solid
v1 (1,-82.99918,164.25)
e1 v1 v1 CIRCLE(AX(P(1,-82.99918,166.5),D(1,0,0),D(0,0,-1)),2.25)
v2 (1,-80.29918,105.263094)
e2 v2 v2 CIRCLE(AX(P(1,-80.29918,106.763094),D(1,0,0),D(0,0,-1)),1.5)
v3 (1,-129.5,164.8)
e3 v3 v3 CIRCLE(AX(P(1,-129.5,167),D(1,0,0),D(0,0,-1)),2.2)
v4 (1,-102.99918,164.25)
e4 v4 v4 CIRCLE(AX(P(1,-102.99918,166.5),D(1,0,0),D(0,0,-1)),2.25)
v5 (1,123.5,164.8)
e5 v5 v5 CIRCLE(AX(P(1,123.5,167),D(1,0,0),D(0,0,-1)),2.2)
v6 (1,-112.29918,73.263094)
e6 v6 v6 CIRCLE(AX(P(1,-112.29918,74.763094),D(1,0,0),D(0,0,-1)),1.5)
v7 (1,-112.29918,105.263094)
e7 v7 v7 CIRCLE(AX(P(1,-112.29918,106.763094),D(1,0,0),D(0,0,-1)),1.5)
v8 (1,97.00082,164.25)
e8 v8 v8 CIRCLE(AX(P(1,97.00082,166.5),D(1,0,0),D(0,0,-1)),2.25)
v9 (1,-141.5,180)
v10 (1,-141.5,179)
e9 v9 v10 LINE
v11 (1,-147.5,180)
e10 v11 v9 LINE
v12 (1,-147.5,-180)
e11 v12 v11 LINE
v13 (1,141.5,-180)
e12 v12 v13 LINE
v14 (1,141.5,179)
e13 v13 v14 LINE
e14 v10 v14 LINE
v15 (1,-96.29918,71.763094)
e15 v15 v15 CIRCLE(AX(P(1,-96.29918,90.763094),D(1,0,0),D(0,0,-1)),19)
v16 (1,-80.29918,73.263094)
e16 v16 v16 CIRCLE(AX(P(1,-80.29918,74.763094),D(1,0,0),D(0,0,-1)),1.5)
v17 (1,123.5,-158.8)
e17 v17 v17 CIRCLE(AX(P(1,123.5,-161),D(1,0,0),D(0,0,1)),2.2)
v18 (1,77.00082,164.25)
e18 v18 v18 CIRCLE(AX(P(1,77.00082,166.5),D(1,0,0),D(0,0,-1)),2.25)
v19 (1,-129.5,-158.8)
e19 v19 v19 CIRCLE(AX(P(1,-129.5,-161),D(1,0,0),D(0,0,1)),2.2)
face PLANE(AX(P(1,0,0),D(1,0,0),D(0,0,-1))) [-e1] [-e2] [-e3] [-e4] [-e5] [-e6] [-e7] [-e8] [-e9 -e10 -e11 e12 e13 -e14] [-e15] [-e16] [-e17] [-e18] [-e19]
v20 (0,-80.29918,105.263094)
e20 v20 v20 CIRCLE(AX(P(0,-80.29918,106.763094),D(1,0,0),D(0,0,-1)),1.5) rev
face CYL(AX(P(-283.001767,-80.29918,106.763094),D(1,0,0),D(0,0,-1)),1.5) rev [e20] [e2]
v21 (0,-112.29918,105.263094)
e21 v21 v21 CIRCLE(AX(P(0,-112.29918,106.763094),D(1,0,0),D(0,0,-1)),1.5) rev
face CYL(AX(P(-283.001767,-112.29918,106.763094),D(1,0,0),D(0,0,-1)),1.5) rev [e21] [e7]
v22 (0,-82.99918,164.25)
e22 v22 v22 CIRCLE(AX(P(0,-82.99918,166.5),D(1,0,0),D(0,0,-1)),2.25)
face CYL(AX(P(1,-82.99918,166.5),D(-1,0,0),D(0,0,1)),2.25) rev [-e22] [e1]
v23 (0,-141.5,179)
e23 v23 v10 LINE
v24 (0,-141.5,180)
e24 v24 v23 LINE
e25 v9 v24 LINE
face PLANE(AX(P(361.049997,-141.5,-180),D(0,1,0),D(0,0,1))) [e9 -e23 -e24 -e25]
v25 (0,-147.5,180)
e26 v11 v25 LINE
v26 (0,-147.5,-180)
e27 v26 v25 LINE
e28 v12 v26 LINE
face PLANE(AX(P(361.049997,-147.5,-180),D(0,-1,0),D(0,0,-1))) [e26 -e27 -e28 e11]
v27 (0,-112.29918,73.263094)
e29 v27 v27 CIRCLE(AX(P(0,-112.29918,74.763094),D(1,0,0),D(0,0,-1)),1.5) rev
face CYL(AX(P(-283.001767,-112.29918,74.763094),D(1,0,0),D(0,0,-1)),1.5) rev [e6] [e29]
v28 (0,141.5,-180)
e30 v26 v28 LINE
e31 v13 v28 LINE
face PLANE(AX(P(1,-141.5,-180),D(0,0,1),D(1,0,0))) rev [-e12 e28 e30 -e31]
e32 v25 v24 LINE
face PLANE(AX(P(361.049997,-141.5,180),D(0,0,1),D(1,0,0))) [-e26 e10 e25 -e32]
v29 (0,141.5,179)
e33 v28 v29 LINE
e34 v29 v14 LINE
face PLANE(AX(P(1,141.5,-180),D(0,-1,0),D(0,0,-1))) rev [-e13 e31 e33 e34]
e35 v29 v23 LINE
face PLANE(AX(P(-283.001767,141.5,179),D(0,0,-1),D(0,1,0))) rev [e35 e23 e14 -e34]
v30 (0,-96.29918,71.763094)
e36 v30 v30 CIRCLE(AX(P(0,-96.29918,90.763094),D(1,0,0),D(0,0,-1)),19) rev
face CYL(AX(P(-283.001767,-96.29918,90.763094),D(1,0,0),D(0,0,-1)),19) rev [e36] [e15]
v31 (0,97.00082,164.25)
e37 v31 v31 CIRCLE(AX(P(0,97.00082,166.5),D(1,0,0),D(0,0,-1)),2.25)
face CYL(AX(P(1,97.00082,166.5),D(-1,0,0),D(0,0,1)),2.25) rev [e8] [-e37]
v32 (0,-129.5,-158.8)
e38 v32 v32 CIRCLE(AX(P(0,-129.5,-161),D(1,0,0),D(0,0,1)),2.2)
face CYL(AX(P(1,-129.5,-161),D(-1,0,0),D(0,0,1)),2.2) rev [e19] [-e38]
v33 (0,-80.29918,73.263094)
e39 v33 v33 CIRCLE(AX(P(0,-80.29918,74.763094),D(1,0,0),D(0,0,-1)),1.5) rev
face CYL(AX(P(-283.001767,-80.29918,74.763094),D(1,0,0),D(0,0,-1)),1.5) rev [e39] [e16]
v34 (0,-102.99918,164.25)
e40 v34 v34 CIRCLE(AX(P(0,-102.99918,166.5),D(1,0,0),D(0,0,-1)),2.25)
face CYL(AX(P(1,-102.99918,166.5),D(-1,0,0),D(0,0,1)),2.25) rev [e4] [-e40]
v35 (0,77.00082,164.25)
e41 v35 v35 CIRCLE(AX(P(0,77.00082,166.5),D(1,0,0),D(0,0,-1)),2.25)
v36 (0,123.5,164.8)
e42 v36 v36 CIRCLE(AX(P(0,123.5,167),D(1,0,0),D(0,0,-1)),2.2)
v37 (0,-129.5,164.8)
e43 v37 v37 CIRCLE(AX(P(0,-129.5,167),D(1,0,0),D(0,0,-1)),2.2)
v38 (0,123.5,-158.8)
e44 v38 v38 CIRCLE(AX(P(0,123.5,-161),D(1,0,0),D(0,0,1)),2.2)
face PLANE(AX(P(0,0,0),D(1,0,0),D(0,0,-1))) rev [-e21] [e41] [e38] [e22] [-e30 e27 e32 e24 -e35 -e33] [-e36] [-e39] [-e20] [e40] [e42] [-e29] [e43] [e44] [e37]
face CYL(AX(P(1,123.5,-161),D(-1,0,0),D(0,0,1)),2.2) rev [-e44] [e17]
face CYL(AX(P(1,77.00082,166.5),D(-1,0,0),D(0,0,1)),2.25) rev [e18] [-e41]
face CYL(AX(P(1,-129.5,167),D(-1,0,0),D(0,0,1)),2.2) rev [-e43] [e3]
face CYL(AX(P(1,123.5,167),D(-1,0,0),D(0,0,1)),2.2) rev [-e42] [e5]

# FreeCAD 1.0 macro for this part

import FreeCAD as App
import Part
import Sketcher
Q = App.Units.Quantity

doc = App.newDocument("Part")
body = doc.addObject("PartDesign::Body", "Body")

sketch1 = body.newObject("Sketcher::SketchObject", "Sketch")
sketch1.AttachmentSupport = (doc.getObject("YZ_Plane"), [""])
sketch1.MapMode = "FlatFace"
sketch1.addGeometry([
    Part.LineSegment(App.Vector(141.5, 180, 0), App.Vector(-141.5, 180, 0)),
    Part.LineSegment(App.Vector(-141.5, 180, 0), App.Vector(-141.5, -180, 0)),
    Part.LineSegment(App.Vector(-141.5, -180, 0), App.Vector(141.5, -180, 0)),
    Part.LineSegment(App.Vector(141.5, -180, 0), App.Vector(141.5, 180, 0)),
    Part.Circle(App.Vector(-129.5, 167, 0), App.Vector(0, 0, 1), 2.2),
    Part.Circle(App.Vector(-103, 166.5, 0), App.Vector(0, 0, 1), 2.2),
    Part.Circle(App.Vector(-83, 166.5, 0), App.Vector(0, 0, 1), 2.2),
    Part.Circle(App.Vector(-129.5, -161, 0), App.Vector(0, 0, 1), 2.2),
    Part.Circle(App.Vector(77, 166.5, 0), App.Vector(0, 0, 1), 2.2),
    Part.Circle(App.Vector(97, 166.5, 0), App.Vector(0, 0, 1), 2.2),
    Part.Circle(App.Vector(123.5, 167, 0), App.Vector(0, 0, 1), 2.2),
    Part.Circle(App.Vector(123.5, -161, 0), App.Vector(0, 0, 1), 2.2),
], False)
sketch1.addConstraint([
    Sketcher.Constraint("Coincident", 0, 2, 1, 1),
    Sketcher.Constraint("Coincident", 1, 2, 2, 1),
    Sketcher.Constraint("Coincident", 2, 2, 3, 1),
    Sketcher.Constraint("Coincident", 3, 2, 0, 1),
    Sketcher.Constraint("Horizontal", 0),
    Sketcher.Constraint("Vertical", 1),
    Sketcher.Constraint("Horizontal", 2),
    Sketcher.Constraint("Vertical", 3),
    Sketcher.Constraint("Equal", 5, 6),
    Sketcher.Constraint("Equal", 4, 7),
    Sketcher.Constraint("Equal", 6, 8),
    Sketcher.Constraint("Equal", 8, 9),
    Sketcher.Constraint("Equal", 7, 10),
    Sketcher.Constraint("Equal", 10, 11),
    Sketcher.Constraint("Symmetric", 0, 2, 2, 2, -1, 1),
    Sketcher.Constraint("Horizontal", 5, 3, 6, 3),
    Sketcher.Constraint("Horizontal", 6, 3, 8, 3),
    Sketcher.Constraint("Horizontal", 8, 3, 9, 3),
    Sketcher.Constraint("Horizontal", 4, 3, 10, 3),
    Sketcher.Constraint("Horizontal", 7, 3, 11, 3),
    Sketcher.Constraint("Vertical", 4, 3, 7, 3),
    Sketcher.Constraint("Vertical", 10, 3, 11, 3),
    Sketcher.Constraint("Diameter", 4, Q("4.4 mm")),
    Sketcher.Constraint("Diameter", 5, Q("4.5 mm")),
    Sketcher.Constraint("DistanceX", 0, 2, 0, 1, Q("283 mm")),
    Sketcher.Constraint("DistanceY", 1, 2, 1, 1, Q("360 mm")),
    Sketcher.Constraint("DistanceY", -1, 1, 4, 3, Q("167 mm")),
    Sketcher.Constraint("DistanceY", 7, 3, -1, 1, Q("161 mm")),
    Sketcher.Constraint("DistanceX", 5, 3, 6, 3, Q("20 mm")),
    Sketcher.Constraint("DistanceX", 6, 3, 8, 3, Q("160 mm")),
    Sketcher.Constraint("DistanceX", 8, 3, 9, 3, Q("20 mm")),
    Sketcher.Constraint("DistanceX", 4, 3, 10, 3, Q("253 mm")),
    Sketcher.Constraint("DistanceX", 0, 2, 4, 3, Q("12 mm")),
    Sketcher.Constraint("DistanceY", -1, 1, 5, 3, Q("166.5 mm")),
    Sketcher.Constraint("DistanceX", 5, 3, -1, 1, Q("102.99918 mm")),
])
pad1 = body.newObject("PartDesign::Pad", "Pad")
pad1.Profile = sketch1
pad1.Length = 1

sketch2 = body.newObject("Sketcher::SketchObject", "Sketch001")
sketch2.AttachmentSupport = (doc.getObject("YZ_Plane"), [""])
sketch2.MapMode = "FlatFace"
sketch2.AttachmentOffset = App.Placement(App.Vector(0, 0, 1), App.Rotation())
sketch2.addGeometry([
    Part.Circle(App.Vector(-96.3, 90.8, 0), App.Vector(0, 0, 1), 19),
    Part.Circle(App.Vector(-80.3, 106.8, 0), App.Vector(0, 0, 1), 1.5),
    Part.Circle(App.Vector(-80.3, 74.8, 0), App.Vector(0, 0, 1), 1.5),
    Part.Circle(App.Vector(-112.3, 74.8, 0), App.Vector(0, 0, 1), 1.5),
    Part.Circle(App.Vector(-112.3, 106.8, 0), App.Vector(0, 0, 1), 1.5),
    Part.LineSegment(App.Vector(141.5, 180, 0), App.Vector(-141.5, 180, 0)),
    Part.LineSegment(App.Vector(-141.5, 180, 0), App.Vector(-141.5, 179, 0)),
    Part.LineSegment(App.Vector(-141.5, 179, 0), App.Vector(141.5, 179, 0)),
    Part.LineSegment(App.Vector(141.5, 179, 0), App.Vector(141.5, 180, 0)),
], False)
sketch2.addConstraint([
    Sketcher.Constraint("Coincident", 5, 2, 6, 1),
    Sketcher.Constraint("Coincident", 6, 2, 7, 1),
    Sketcher.Constraint("Coincident", 7, 2, 8, 1),
    Sketcher.Constraint("Coincident", 8, 2, 5, 1),
    Sketcher.Constraint("Horizontal", 5),
    Sketcher.Constraint("Vertical", 6),
    Sketcher.Constraint("Horizontal", 7),
    Sketcher.Constraint("Vertical", 8),
    Sketcher.Constraint("Equal", 1, 2),
    Sketcher.Constraint("Equal", 2, 3),
    Sketcher.Constraint("Equal", 3, 4),
    Sketcher.Constraint("Horizontal", 2, 3, 3, 3),
    Sketcher.Constraint("Horizontal", 1, 3, 4, 3),
    Sketcher.Constraint("Vertical", 1, 3, 2, 3),
    Sketcher.Constraint("Vertical", 3, 3, 4, 3),
    Sketcher.Constraint("Diameter", 0, Q("38 mm")),
    Sketcher.Constraint("Diameter", 1, Q("3 mm")),
    Sketcher.Constraint("DistanceX", 5, 2, 5, 1, Q("283 mm")),
    Sketcher.Constraint("DistanceY", 6, 2, 6, 1, Q("1 mm")),
    Sketcher.Constraint("DistanceY", -1, 1, 5, 2, Q("180 mm")),
    Sketcher.Constraint("DistanceX", 0, 3, 1, 3, Q("16 mm")),
    Sketcher.Constraint("DistanceY", 0, 3, 1, 3, Q("16 mm")),
    Sketcher.Constraint("DistanceY", 2, 3, 0, 3, Q("16 mm")),
    Sketcher.Constraint("DistanceX", 3, 3, 0, 3, Q("16 mm")),
    Sketcher.Constraint("DistanceX", 5, 2, -1, 1, Q("141.5 mm")),
    Sketcher.Constraint("DistanceX", 0, 3, -1, 1, Q("96.29918 mm")),
    Sketcher.Constraint("DistanceY", -1, 1, 0, 3, Q("90.763094 mm")),
])
pocket1 = body.newObject("PartDesign::Pocket", "Pocket")
pocket1.Profile = sketch2
pocket1.Length = 1

sketch3 = body.newObject("Sketcher::SketchObject", "Sketch002")
sketch3.AttachmentSupport = (doc.getObject("YZ_Plane"), [""])
sketch3.MapMode = "FlatFace"
sketch3.addGeometry([
    Part.LineSegment(App.Vector(-142, -180, 0), App.Vector(-148, -180, 0)),
    Part.LineSegment(App.Vector(-148, -180, 0), App.Vector(-148, 180, 0)),
    Part.LineSegment(App.Vector(-148, 180, 0), App.Vector(-142, 180, 0)),
    Part.LineSegment(App.Vector(-142, 180, 0), App.Vector(-142, -180, 0)),
], False)
sketch3.addConstraint([
    Sketcher.Constraint("Coincident", 0, 2, 1, 1),
    Sketcher.Constraint("Coincident", 1, 2, 2, 1),
    Sketcher.Constraint("Coincident", 2, 2, 3, 1),
    Sketcher.Constraint("Coincident", 3, 2, 0, 1),
    Sketcher.Constraint("Horizontal", 0),
    Sketcher.Constraint("Vertical", 1),
    Sketcher.Constraint("Horizontal", 2),
    Sketcher.Constraint("Vertical", 3),
    Sketcher.Constraint("DistanceX", 0, 2, 0, 1, Q("6 mm")),
    Sketcher.Constraint("DistanceY", 1, 1, 1, 2, Q("360 mm")),
    Sketcher.Constraint("DistanceY", 0, 2, -1, 1, Q("180 mm")),
    Sketcher.Constraint("DistanceX", 0, 2, -1, 1, Q("147.5 mm")),
])
pad2 = body.newObject("PartDesign::Pad", "Pad001")
pad2.Profile = sketch3
pad2.Length = 1

doc.recompute()
